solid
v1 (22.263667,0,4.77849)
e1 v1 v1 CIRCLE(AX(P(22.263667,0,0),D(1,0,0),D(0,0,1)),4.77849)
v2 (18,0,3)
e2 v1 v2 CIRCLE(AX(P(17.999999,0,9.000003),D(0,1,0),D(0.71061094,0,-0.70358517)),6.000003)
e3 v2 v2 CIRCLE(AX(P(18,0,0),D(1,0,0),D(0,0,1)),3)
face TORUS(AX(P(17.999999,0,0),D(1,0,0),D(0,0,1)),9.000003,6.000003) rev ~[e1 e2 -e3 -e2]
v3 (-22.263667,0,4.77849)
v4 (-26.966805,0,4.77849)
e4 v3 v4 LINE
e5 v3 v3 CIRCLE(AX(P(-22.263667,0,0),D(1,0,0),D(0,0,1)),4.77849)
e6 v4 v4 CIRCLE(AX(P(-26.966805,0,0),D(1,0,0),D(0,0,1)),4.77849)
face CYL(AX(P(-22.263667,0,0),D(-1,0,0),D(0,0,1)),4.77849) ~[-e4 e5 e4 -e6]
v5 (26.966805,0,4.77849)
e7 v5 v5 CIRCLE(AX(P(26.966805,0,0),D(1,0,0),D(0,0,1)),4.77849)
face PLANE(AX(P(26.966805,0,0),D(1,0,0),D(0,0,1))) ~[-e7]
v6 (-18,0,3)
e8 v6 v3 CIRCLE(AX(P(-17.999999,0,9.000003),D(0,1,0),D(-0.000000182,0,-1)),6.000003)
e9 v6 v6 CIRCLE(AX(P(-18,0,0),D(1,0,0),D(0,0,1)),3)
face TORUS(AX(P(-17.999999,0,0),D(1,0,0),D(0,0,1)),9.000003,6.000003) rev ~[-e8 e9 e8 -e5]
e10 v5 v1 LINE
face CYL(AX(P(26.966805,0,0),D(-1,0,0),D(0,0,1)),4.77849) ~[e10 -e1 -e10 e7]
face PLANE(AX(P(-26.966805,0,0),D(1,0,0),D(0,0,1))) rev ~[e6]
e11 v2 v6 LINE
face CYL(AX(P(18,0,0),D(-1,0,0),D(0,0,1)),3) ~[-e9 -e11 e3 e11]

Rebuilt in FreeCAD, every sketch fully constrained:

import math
import FreeCAD as App
import Part
import Sketcher
from FreeCAD import Vector
Q = App.Units.Quantity

doc = App.newDocument("Part")
body = doc.addObject("PartDesign::Body", "Body")

# Sketch on XZ plane
sketch1 = body.newObject("Sketcher::SketchObject", "Sketch")
sketch1.AttachmentSupport = (doc.getObject("XZ_Plane"), [""])
sketch1.MapMode = "FlatFace"
sketch1.addGeometry(Part.LineSegment(Vector(-27, 0, 0), Vector(27, 0, 0)), False)
sketch1.addGeometry(Part.LineSegment(Vector(27, 0, 0), Vector(27, 4.8, 0)), False)
sketch1.addGeometry(Part.LineSegment(Vector(27, 4.8, 0), Vector(22.3, 4.8, 0)), False)
sketch1.addGeometry(Part.ArcOfCircle(Part.Circle(Vector(18, 9, 0), Vector(0, 0, 1), 6), math.radians(-90), math.radians(-45)), False)
sketch1.addGeometry(Part.LineSegment(Vector(18, 3, 0), Vector(-18, 3, 0)), False)
sketch1.addGeometry(Part.ArcOfCircle(Part.Circle(Vector(-18, 9, 0), Vector(0, 0, 1), 6), math.radians(-135), math.radians(-90)), False)
sketch1.addGeometry(Part.LineSegment(Vector(-22.3, 4.8, 0), Vector(-27, 4.8, 0)), False)
sketch1.addGeometry(Part.LineSegment(Vector(-27, 4.8, 0), Vector(-27, 0, 0)), False)
sketch1.addConstraint(Sketcher.Constraint("Coincident", 0, 2, 1, 1))
sketch1.addConstraint(Sketcher.Constraint("Coincident", 1, 2, 2, 1))
sketch1.addConstraint(Sketcher.Constraint("Coincident", 2, 2, 3, 2))
sketch1.addConstraint(Sketcher.Constraint("Tangent", 3, 1, 4, 1))
sketch1.addConstraint(Sketcher.Constraint("Tangent", 4, 2, 5, 2))
sketch1.addConstraint(Sketcher.Constraint("Coincident", 5, 1, 6, 1))
sketch1.addConstraint(Sketcher.Constraint("Coincident", 6, 2, 7, 1))
sketch1.addConstraint(Sketcher.Constraint("Coincident", 7, 2, 0, 1))
sketch1.addConstraint(Sketcher.Constraint("Horizontal", 0))
sketch1.addConstraint(Sketcher.Constraint("Vertical", 1))
sketch1.addConstraint(Sketcher.Constraint("Horizontal", 2))
sketch1.addConstraint(Sketcher.Constraint("Horizontal", 4))
sketch1.addConstraint(Sketcher.Constraint("Horizontal", 6))
sketch1.addConstraint(Sketcher.Constraint("Vertical", 7))
sketch1.addConstraint(Sketcher.Constraint("Equal", 3, 5))
sketch1.addConstraint(Sketcher.Constraint("Symmetric", 0, 2, 7, 2, -1, 1))
sketch1.addConstraint(Sketcher.Constraint("Symmetric", 2, 2, 5, 1, -2))
sketch1.addConstraint(Sketcher.Constraint("DistanceX", 4, 2, 4, 1, Q("36 mm")))
sketch1.addConstraint(Sketcher.Constraint("DistanceY", -1, 1, 3, 1, Q("3 mm")))
sketch1.addConstraint(Sketcher.Constraint("Radius", 3, Q("6.000003 mm")))
sketch1.addConstraint(Sketcher.Constraint("DistanceX", 0, 1, 0, 2, Q("53.93361 mm")))
sketch1.addConstraint(Sketcher.Constraint("DistanceY", 1, 1, 1, 2, Q("4.77849 mm")))
revolution = body.newObject("PartDesign::Revolution", "Revolution")
revolution.Profile = sketch1
revolution.ReferenceAxis = (sketch1, ["H_Axis"])
revolution.Angle = 360

doc.recompute()
